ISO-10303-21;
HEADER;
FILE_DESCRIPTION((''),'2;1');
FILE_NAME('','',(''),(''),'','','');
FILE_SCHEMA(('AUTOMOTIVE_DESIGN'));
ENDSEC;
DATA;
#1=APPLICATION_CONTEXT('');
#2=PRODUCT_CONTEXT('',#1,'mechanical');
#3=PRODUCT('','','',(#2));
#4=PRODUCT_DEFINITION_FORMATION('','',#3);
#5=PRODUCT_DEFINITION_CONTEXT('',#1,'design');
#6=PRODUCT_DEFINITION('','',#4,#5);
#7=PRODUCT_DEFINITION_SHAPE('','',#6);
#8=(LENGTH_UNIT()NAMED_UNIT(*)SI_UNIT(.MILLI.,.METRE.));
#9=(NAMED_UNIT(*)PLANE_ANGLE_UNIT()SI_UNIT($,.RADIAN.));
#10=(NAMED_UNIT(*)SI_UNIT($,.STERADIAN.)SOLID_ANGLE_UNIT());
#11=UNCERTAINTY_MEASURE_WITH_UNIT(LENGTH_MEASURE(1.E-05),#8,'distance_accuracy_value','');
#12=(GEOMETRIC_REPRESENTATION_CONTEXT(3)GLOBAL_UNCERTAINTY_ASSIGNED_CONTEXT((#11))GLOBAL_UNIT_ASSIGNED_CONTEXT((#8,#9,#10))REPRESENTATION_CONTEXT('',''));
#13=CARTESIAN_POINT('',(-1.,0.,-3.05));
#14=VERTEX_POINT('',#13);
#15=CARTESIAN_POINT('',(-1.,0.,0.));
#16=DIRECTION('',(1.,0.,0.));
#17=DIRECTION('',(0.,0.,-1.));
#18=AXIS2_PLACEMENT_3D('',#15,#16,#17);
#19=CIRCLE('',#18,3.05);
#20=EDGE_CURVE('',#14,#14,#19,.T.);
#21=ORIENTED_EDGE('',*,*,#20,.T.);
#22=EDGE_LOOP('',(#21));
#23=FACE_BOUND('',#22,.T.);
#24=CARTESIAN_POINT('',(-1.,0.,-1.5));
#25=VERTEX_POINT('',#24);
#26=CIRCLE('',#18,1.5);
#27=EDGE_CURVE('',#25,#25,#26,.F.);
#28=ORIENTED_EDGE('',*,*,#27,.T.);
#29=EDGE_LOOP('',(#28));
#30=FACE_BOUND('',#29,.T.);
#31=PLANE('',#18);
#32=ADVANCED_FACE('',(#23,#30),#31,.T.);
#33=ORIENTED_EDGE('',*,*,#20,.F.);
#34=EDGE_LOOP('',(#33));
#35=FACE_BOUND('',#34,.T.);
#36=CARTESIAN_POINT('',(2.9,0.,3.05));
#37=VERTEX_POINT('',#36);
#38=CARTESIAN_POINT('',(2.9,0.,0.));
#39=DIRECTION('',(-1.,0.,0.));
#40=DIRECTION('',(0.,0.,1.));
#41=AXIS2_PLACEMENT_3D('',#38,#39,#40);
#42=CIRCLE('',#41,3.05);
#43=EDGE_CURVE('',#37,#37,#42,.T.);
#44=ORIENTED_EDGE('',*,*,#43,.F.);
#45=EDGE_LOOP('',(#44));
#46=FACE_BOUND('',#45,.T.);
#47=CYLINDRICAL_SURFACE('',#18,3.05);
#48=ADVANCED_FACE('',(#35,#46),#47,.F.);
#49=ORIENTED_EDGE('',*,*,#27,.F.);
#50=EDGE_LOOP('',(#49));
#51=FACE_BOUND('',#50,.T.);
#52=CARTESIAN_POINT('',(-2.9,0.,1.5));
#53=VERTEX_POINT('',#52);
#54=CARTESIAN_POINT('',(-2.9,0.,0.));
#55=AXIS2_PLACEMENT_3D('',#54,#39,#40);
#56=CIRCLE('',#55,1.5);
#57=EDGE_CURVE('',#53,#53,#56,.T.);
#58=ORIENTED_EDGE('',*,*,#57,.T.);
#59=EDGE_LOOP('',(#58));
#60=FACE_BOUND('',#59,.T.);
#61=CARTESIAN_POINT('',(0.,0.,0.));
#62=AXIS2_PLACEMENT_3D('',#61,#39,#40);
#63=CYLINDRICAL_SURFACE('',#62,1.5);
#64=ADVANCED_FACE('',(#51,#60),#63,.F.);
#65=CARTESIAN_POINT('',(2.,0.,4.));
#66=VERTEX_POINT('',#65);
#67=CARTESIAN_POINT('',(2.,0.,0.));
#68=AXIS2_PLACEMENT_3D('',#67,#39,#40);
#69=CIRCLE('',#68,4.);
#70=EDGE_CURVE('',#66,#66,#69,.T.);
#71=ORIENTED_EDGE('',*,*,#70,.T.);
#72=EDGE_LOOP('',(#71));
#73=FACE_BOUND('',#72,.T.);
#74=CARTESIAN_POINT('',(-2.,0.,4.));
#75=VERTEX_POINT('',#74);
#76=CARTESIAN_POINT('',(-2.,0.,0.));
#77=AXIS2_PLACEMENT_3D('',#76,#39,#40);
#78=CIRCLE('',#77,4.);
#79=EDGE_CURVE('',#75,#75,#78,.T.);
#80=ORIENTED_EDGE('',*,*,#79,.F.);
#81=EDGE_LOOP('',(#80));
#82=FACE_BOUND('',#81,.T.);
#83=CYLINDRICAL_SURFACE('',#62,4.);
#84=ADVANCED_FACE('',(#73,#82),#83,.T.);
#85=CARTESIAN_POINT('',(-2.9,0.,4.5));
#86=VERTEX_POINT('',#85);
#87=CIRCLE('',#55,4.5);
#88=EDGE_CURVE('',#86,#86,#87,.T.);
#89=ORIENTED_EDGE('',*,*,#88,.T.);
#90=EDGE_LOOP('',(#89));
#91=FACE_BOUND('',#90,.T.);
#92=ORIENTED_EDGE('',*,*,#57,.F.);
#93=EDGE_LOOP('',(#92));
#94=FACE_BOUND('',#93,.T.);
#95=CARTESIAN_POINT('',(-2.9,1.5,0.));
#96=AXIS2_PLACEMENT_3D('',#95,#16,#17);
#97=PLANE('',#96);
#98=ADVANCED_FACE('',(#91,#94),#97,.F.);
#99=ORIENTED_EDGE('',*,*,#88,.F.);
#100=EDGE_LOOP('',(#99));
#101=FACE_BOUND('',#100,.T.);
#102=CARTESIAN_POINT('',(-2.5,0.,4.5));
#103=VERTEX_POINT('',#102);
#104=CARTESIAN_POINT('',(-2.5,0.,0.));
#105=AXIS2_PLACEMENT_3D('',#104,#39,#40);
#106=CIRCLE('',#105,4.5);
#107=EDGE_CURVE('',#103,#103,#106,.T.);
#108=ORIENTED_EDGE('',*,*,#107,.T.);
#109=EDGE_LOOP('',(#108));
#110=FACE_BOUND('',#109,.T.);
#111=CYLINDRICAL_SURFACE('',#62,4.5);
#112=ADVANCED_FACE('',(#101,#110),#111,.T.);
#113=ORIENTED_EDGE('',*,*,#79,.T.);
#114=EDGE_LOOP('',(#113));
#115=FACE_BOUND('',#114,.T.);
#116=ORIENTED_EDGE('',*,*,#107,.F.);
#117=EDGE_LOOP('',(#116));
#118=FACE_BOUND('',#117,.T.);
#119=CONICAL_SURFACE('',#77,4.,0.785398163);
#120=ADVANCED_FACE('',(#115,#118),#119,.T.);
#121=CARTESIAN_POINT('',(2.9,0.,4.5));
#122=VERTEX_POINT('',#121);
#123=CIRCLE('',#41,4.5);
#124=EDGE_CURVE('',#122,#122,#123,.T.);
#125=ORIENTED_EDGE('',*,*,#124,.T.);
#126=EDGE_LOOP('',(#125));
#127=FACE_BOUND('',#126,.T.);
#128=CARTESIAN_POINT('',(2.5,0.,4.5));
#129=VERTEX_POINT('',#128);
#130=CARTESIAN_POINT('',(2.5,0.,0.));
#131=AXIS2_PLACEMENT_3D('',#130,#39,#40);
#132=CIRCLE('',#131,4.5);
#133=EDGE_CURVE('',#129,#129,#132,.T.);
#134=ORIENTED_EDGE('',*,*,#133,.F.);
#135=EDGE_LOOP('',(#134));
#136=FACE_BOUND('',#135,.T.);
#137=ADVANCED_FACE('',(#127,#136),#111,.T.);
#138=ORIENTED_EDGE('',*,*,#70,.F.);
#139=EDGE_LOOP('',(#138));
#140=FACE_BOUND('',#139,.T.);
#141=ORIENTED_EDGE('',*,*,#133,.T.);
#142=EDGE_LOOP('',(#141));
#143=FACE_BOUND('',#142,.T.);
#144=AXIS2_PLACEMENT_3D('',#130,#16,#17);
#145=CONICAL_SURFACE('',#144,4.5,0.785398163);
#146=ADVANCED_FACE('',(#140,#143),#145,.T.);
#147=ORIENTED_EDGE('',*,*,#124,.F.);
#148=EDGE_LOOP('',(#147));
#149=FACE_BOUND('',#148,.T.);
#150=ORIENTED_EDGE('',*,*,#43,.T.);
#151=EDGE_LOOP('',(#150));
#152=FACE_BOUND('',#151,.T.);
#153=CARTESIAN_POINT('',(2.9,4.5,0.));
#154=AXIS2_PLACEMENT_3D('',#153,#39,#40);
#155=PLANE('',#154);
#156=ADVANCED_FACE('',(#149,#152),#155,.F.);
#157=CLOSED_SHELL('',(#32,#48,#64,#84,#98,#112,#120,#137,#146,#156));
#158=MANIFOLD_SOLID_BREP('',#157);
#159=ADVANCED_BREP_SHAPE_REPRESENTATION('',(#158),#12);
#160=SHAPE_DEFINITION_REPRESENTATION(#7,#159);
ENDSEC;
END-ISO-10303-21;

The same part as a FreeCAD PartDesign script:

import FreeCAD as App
import Part
import Sketcher

doc = App.newDocument("Part")
body = doc.addObject("PartDesign::Body", "Body")

# Sketch on XY plane
sketch1 = doc.addObject("Sketcher::SketchObject", "Sketch")
body.addObject(sketch1)
sketch1.AttachmentSupport = (doc.XY_Plane, [""])
sketch1.MapMode = "FlatFace"
sketch1.addGeometry([
    Part.LineSegment(App.Vector(-2.9, 4.5, 0), App.Vector(-2.9, 1.5, 0)),  # 0
    Part.LineSegment(App.Vector(-2.9, 1.5, 0), App.Vector(2.9, 1.5, 0)),  # 1
    Part.LineSegment(App.Vector(2.9, 1.5, 0), App.Vector(2.9, 4.5, 0)),  # 2
    Part.LineSegment(App.Vector(2.9, 4.5, 0), App.Vector(2.5, 4.5, 0)),  # 3
    Part.LineSegment(App.Vector(2.5, 4.5, 0), App.Vector(2, 4, 0)),  # 4
    Part.LineSegment(App.Vector(2, 4, 0), App.Vector(-2, 4, 0)),  # 5
    Part.LineSegment(App.Vector(-2, 4, 0), App.Vector(-2.5, 4.5, 0)),  # 6
    Part.LineSegment(App.Vector(-2.5, 4.5, 0), App.Vector(-2.9, 4.5, 0)),  # 7
], False)
sketch1.addConstraint([
    Sketcher.Constraint("Coincident", 0, 2, 1, 1),
    Sketcher.Constraint("Coincident", 1, 2, 2, 1),
    Sketcher.Constraint("Coincident", 2, 2, 3, 1),
    Sketcher.Constraint("Coincident", 3, 2, 4, 1),
    Sketcher.Constraint("Coincident", 4, 2, 5, 1),
    Sketcher.Constraint("Coincident", 5, 2, 6, 1),
    Sketcher.Constraint("Coincident", 6, 2, 7, 1),
    Sketcher.Constraint("Coincident", 7, 2, 0, 1),
    Sketcher.Constraint("Vertical", 0),
    Sketcher.Constraint("Horizontal", 1),
    Sketcher.Constraint("Vertical", 2),
    Sketcher.Constraint("Horizontal", 3),
    Sketcher.Constraint("Horizontal", 5),
    Sketcher.Constraint("Horizontal", 7),
    Sketcher.Constraint("Symmetric", 3, 2, 6, 2, -2),
    Sketcher.Constraint("Perpendicular", 4, 6),
    Sketcher.Constraint("Equal", 3, 7),
    Sketcher.Constraint("Equal", 4, 6),
    Sketcher.Constraint("DistanceX", 5, 2, 5, 1, 4.0),
    Sketcher.Constraint("DistanceY", 0, 2, 0, 1, 3.0),
    Sketcher.Constraint("DistanceX", 1, 1, 1, 2, 5.8),
    Sketcher.Constraint("DistanceX", 3, 2, 3, 1, 0.4),
    Sketcher.Constraint("DistanceY", -1, 1, 4, 2, 4.0),
])
revolution = doc.addObject("PartDesign::Revolution", "Revolution")
body.addObject(revolution)
revolution.Profile = sketch1
revolution.ReferenceAxis = (sketch1, ["H_Axis"])
revolution.Angle = 360

# Sketch on YZ plane
sketch2 = doc.addObject("Sketcher::SketchObject", "Sketch001")
body.addObject(sketch2)
sketch2.AttachmentSupport = (doc.YZ_Plane, [""])
sketch2.MapMode = "FlatFace"
sketch2.addGeometry(Part.Circle(App.Vector(0, 0, 0), App.Vector(0, 0, 1), 3), False)
sketch2.addConstraint([
    Sketcher.Constraint("Coincident", 0, 3, -1, 1),
    Sketcher.Constraint("Diameter", 0, 6.1),
])
pocket1 = doc.addObject("PartDesign::Pocket", "Pocket")
body.addObject(pocket1)
pocket1.Profile = sketch2
pocket1.Type = "TwoLengths"
pocket1.Length = 10
pocket1.Length2 = 1
pocket1.Reversed = True

doc.recompute()
